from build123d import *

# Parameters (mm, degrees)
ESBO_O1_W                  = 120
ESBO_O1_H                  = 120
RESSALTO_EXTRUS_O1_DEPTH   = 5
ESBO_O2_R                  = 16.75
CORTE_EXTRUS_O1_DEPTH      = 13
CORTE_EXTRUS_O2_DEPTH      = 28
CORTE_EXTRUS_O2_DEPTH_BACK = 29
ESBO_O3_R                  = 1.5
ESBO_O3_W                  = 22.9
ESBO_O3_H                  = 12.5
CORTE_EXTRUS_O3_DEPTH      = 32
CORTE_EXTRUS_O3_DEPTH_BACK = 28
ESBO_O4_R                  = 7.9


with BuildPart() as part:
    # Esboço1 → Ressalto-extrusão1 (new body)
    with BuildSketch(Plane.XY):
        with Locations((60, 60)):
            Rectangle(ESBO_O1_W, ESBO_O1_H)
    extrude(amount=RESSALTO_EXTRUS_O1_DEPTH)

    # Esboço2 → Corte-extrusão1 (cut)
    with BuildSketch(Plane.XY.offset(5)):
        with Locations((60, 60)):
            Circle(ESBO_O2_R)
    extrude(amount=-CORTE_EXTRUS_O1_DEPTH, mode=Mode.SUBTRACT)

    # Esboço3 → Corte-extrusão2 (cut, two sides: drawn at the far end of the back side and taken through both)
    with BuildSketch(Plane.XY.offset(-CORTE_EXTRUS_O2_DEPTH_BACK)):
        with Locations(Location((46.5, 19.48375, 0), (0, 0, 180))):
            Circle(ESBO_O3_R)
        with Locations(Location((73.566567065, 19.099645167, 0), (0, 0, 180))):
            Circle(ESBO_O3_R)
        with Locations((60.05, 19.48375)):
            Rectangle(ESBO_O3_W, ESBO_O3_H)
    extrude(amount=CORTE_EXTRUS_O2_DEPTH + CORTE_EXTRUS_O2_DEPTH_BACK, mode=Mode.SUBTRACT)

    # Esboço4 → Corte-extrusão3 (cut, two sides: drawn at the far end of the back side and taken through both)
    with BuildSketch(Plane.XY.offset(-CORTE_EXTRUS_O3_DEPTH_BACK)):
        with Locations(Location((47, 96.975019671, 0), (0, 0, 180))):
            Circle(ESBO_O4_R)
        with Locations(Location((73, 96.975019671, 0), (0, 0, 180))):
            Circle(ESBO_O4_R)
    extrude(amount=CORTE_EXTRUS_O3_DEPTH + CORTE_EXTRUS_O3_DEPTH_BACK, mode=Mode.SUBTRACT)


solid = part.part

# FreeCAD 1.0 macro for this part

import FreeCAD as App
import Part
import Sketcher


def add_polygon(sketch, points):
    """Adds a closed chain of lines whose ends are joined by coincident constraints."""
    first, n = sketch.GeometryCount, len(points)
    for a, b in zip(points, points[1:] + points[:1]):
        sketch.addGeometry(Part.LineSegment(App.Vector(*a, 0), App.Vector(*b, 0)), False)
    for i in range(n):
        sketch.addConstraint(Sketcher.Constraint("Coincident", first + i, 2, first + (i + 1) % n, 1))

doc = App.newDocument("Part")
body = doc.addObject("PartDesign::Body", "Body")

# Sketch on XY plane
sketch1 = body.newObject("Sketcher::SketchObject", "Sketch")
sketch1.AttachmentSupport = (doc.getObject("XY_Plane"), [""])
sketch1.MapMode = "FlatFace"
add_polygon(sketch1, [(0, 120), (0, 0), (120, 0), (120, 120)])  # lines 0-3
sketch1.addConstraint([
    Sketcher.Constraint("Vertical", 0),
    Sketcher.Constraint("Horizontal", 1),
    Sketcher.Constraint("Vertical", 2),
    Sketcher.Constraint("Horizontal", 3),
    Sketcher.Constraint("Coincident", 0, 2, -1, 1),
    Sketcher.Constraint("Equal", 3, 0),
    Sketcher.Constraint("DistanceX", 1, 1, 1, 2, 120.0),
])
pad1 = body.newObject("PartDesign::Pad", "Pad")
pad1.Profile = sketch1
pad1.Length = 5

# Sketch on XY plane
sketch2 = body.newObject("Sketcher::SketchObject", "Sketch001")
sketch2.AttachmentSupport = (doc.getObject("XY_Plane"), [""])
sketch2.MapMode = "FlatFace"
sketch2.AttachmentOffset = App.Placement(App.Vector(0, 0, 5), App.Rotation())
sketch2.addGeometry(Part.Circle(App.Vector(60, 60, 0), App.Vector(0, 0, 1), 17), False)
sketch2.addConstraint([
    Sketcher.Constraint("Diameter", 0, 33.5),
    Sketcher.Constraint("DistanceX", -1, 1, 0, 3, 60.0),
    Sketcher.Constraint("DistanceY", -1, 1, 0, 3, 60.0),
])
pocket1 = body.newObject("PartDesign::Pocket", "Pocket")
pocket1.Profile = sketch2
pocket1.Length = 13

# Sketch on XY plane
sketch3 = body.newObject("Sketcher::SketchObject", "Sketch002")
sketch3.AttachmentSupport = (doc.getObject("XY_Plane"), [""])
sketch3.MapMode = "FlatFace"
sketch3.addGeometry(Part.Circle(App.Vector(46.5, 19.5, 0), App.Vector(0, 0, 1), 1.5), False)  # 0
sketch3.addGeometry(Part.Circle(App.Vector(73.6, 19.1, 0), App.Vector(0, 0, 1), 1.5), False)  # 1
add_polygon(sketch3, [(48.6, 25.7), (48.6, 13.2), (71.5, 13.2), (71.5, 25.7)])  # lines 2-5
sketch3.addConstraint([
    Sketcher.Constraint("Vertical", 2),
    Sketcher.Constraint("Horizontal", 3),
    Sketcher.Constraint("Vertical", 4),
    Sketcher.Constraint("Horizontal", 5),
    Sketcher.Constraint("Equal", 0, 1),
    Sketcher.Constraint("Diameter", 0, 3.0),
    Sketcher.Constraint("DistanceX", 3, 1, 3, 2, 22.9),
    Sketcher.Constraint("DistanceY", 2, 2, 2, 1, 12.5),
    Sketcher.Constraint("DistanceX", 0, 3, 3, 2, 25.0),
    Sketcher.Constraint("DistanceX", -1, 1, 0, 3, 46.5),
    Sketcher.Constraint("DistanceY", 2, 2, 0, 3, 6.25),
    Sketcher.Constraint("DistanceY", -1, 1, 0, 3, 19.48375),
    Sketcher.Constraint("DistanceX", -1, 1, 1, 3, 73.566567),
    Sketcher.Constraint("DistanceY", -1, 1, 1, 3, 19.099645),
])
pocket2 = body.newObject("PartDesign::Pocket", "Pocket001")
pocket2.Profile = sketch3
pocket2.Type = "ThroughAll"
pocket2.Midplane = True

# Sketch on XY plane
sketch4 = body.newObject("Sketcher::SketchObject", "Sketch003")
sketch4.AttachmentSupport = (doc.getObject("XY_Plane"), [""])
sketch4.MapMode = "FlatFace"
sketch4.addGeometry([
    Part.Circle(App.Vector(47, 97, 0), App.Vector(0, 0, 1), 8),
    Part.Circle(App.Vector(73, 97, 0), App.Vector(0, 0, 1), 8),
], False)
sketch4.addConstraint([
    Sketcher.Constraint("Equal", 0, 1),
    Sketcher.Constraint("Horizontal", 0, 3, 1, 3),
    Sketcher.Constraint("Diameter", 0, 15.8),
    Sketcher.Constraint("DistanceX", -1, 1, 0, 3, 47.0),
    Sketcher.Constraint("DistanceX", -1, 1, 1, 3, 73.0),
    Sketcher.Constraint("DistanceY", -1, 1, 0, 3, 96.97502),
])
pocket3 = body.newObject("PartDesign::Pocket", "Pocket002")
pocket3.Profile = sketch4
pocket3.Type = "ThroughAll"
pocket3.Midplane = True

doc.recompute()
